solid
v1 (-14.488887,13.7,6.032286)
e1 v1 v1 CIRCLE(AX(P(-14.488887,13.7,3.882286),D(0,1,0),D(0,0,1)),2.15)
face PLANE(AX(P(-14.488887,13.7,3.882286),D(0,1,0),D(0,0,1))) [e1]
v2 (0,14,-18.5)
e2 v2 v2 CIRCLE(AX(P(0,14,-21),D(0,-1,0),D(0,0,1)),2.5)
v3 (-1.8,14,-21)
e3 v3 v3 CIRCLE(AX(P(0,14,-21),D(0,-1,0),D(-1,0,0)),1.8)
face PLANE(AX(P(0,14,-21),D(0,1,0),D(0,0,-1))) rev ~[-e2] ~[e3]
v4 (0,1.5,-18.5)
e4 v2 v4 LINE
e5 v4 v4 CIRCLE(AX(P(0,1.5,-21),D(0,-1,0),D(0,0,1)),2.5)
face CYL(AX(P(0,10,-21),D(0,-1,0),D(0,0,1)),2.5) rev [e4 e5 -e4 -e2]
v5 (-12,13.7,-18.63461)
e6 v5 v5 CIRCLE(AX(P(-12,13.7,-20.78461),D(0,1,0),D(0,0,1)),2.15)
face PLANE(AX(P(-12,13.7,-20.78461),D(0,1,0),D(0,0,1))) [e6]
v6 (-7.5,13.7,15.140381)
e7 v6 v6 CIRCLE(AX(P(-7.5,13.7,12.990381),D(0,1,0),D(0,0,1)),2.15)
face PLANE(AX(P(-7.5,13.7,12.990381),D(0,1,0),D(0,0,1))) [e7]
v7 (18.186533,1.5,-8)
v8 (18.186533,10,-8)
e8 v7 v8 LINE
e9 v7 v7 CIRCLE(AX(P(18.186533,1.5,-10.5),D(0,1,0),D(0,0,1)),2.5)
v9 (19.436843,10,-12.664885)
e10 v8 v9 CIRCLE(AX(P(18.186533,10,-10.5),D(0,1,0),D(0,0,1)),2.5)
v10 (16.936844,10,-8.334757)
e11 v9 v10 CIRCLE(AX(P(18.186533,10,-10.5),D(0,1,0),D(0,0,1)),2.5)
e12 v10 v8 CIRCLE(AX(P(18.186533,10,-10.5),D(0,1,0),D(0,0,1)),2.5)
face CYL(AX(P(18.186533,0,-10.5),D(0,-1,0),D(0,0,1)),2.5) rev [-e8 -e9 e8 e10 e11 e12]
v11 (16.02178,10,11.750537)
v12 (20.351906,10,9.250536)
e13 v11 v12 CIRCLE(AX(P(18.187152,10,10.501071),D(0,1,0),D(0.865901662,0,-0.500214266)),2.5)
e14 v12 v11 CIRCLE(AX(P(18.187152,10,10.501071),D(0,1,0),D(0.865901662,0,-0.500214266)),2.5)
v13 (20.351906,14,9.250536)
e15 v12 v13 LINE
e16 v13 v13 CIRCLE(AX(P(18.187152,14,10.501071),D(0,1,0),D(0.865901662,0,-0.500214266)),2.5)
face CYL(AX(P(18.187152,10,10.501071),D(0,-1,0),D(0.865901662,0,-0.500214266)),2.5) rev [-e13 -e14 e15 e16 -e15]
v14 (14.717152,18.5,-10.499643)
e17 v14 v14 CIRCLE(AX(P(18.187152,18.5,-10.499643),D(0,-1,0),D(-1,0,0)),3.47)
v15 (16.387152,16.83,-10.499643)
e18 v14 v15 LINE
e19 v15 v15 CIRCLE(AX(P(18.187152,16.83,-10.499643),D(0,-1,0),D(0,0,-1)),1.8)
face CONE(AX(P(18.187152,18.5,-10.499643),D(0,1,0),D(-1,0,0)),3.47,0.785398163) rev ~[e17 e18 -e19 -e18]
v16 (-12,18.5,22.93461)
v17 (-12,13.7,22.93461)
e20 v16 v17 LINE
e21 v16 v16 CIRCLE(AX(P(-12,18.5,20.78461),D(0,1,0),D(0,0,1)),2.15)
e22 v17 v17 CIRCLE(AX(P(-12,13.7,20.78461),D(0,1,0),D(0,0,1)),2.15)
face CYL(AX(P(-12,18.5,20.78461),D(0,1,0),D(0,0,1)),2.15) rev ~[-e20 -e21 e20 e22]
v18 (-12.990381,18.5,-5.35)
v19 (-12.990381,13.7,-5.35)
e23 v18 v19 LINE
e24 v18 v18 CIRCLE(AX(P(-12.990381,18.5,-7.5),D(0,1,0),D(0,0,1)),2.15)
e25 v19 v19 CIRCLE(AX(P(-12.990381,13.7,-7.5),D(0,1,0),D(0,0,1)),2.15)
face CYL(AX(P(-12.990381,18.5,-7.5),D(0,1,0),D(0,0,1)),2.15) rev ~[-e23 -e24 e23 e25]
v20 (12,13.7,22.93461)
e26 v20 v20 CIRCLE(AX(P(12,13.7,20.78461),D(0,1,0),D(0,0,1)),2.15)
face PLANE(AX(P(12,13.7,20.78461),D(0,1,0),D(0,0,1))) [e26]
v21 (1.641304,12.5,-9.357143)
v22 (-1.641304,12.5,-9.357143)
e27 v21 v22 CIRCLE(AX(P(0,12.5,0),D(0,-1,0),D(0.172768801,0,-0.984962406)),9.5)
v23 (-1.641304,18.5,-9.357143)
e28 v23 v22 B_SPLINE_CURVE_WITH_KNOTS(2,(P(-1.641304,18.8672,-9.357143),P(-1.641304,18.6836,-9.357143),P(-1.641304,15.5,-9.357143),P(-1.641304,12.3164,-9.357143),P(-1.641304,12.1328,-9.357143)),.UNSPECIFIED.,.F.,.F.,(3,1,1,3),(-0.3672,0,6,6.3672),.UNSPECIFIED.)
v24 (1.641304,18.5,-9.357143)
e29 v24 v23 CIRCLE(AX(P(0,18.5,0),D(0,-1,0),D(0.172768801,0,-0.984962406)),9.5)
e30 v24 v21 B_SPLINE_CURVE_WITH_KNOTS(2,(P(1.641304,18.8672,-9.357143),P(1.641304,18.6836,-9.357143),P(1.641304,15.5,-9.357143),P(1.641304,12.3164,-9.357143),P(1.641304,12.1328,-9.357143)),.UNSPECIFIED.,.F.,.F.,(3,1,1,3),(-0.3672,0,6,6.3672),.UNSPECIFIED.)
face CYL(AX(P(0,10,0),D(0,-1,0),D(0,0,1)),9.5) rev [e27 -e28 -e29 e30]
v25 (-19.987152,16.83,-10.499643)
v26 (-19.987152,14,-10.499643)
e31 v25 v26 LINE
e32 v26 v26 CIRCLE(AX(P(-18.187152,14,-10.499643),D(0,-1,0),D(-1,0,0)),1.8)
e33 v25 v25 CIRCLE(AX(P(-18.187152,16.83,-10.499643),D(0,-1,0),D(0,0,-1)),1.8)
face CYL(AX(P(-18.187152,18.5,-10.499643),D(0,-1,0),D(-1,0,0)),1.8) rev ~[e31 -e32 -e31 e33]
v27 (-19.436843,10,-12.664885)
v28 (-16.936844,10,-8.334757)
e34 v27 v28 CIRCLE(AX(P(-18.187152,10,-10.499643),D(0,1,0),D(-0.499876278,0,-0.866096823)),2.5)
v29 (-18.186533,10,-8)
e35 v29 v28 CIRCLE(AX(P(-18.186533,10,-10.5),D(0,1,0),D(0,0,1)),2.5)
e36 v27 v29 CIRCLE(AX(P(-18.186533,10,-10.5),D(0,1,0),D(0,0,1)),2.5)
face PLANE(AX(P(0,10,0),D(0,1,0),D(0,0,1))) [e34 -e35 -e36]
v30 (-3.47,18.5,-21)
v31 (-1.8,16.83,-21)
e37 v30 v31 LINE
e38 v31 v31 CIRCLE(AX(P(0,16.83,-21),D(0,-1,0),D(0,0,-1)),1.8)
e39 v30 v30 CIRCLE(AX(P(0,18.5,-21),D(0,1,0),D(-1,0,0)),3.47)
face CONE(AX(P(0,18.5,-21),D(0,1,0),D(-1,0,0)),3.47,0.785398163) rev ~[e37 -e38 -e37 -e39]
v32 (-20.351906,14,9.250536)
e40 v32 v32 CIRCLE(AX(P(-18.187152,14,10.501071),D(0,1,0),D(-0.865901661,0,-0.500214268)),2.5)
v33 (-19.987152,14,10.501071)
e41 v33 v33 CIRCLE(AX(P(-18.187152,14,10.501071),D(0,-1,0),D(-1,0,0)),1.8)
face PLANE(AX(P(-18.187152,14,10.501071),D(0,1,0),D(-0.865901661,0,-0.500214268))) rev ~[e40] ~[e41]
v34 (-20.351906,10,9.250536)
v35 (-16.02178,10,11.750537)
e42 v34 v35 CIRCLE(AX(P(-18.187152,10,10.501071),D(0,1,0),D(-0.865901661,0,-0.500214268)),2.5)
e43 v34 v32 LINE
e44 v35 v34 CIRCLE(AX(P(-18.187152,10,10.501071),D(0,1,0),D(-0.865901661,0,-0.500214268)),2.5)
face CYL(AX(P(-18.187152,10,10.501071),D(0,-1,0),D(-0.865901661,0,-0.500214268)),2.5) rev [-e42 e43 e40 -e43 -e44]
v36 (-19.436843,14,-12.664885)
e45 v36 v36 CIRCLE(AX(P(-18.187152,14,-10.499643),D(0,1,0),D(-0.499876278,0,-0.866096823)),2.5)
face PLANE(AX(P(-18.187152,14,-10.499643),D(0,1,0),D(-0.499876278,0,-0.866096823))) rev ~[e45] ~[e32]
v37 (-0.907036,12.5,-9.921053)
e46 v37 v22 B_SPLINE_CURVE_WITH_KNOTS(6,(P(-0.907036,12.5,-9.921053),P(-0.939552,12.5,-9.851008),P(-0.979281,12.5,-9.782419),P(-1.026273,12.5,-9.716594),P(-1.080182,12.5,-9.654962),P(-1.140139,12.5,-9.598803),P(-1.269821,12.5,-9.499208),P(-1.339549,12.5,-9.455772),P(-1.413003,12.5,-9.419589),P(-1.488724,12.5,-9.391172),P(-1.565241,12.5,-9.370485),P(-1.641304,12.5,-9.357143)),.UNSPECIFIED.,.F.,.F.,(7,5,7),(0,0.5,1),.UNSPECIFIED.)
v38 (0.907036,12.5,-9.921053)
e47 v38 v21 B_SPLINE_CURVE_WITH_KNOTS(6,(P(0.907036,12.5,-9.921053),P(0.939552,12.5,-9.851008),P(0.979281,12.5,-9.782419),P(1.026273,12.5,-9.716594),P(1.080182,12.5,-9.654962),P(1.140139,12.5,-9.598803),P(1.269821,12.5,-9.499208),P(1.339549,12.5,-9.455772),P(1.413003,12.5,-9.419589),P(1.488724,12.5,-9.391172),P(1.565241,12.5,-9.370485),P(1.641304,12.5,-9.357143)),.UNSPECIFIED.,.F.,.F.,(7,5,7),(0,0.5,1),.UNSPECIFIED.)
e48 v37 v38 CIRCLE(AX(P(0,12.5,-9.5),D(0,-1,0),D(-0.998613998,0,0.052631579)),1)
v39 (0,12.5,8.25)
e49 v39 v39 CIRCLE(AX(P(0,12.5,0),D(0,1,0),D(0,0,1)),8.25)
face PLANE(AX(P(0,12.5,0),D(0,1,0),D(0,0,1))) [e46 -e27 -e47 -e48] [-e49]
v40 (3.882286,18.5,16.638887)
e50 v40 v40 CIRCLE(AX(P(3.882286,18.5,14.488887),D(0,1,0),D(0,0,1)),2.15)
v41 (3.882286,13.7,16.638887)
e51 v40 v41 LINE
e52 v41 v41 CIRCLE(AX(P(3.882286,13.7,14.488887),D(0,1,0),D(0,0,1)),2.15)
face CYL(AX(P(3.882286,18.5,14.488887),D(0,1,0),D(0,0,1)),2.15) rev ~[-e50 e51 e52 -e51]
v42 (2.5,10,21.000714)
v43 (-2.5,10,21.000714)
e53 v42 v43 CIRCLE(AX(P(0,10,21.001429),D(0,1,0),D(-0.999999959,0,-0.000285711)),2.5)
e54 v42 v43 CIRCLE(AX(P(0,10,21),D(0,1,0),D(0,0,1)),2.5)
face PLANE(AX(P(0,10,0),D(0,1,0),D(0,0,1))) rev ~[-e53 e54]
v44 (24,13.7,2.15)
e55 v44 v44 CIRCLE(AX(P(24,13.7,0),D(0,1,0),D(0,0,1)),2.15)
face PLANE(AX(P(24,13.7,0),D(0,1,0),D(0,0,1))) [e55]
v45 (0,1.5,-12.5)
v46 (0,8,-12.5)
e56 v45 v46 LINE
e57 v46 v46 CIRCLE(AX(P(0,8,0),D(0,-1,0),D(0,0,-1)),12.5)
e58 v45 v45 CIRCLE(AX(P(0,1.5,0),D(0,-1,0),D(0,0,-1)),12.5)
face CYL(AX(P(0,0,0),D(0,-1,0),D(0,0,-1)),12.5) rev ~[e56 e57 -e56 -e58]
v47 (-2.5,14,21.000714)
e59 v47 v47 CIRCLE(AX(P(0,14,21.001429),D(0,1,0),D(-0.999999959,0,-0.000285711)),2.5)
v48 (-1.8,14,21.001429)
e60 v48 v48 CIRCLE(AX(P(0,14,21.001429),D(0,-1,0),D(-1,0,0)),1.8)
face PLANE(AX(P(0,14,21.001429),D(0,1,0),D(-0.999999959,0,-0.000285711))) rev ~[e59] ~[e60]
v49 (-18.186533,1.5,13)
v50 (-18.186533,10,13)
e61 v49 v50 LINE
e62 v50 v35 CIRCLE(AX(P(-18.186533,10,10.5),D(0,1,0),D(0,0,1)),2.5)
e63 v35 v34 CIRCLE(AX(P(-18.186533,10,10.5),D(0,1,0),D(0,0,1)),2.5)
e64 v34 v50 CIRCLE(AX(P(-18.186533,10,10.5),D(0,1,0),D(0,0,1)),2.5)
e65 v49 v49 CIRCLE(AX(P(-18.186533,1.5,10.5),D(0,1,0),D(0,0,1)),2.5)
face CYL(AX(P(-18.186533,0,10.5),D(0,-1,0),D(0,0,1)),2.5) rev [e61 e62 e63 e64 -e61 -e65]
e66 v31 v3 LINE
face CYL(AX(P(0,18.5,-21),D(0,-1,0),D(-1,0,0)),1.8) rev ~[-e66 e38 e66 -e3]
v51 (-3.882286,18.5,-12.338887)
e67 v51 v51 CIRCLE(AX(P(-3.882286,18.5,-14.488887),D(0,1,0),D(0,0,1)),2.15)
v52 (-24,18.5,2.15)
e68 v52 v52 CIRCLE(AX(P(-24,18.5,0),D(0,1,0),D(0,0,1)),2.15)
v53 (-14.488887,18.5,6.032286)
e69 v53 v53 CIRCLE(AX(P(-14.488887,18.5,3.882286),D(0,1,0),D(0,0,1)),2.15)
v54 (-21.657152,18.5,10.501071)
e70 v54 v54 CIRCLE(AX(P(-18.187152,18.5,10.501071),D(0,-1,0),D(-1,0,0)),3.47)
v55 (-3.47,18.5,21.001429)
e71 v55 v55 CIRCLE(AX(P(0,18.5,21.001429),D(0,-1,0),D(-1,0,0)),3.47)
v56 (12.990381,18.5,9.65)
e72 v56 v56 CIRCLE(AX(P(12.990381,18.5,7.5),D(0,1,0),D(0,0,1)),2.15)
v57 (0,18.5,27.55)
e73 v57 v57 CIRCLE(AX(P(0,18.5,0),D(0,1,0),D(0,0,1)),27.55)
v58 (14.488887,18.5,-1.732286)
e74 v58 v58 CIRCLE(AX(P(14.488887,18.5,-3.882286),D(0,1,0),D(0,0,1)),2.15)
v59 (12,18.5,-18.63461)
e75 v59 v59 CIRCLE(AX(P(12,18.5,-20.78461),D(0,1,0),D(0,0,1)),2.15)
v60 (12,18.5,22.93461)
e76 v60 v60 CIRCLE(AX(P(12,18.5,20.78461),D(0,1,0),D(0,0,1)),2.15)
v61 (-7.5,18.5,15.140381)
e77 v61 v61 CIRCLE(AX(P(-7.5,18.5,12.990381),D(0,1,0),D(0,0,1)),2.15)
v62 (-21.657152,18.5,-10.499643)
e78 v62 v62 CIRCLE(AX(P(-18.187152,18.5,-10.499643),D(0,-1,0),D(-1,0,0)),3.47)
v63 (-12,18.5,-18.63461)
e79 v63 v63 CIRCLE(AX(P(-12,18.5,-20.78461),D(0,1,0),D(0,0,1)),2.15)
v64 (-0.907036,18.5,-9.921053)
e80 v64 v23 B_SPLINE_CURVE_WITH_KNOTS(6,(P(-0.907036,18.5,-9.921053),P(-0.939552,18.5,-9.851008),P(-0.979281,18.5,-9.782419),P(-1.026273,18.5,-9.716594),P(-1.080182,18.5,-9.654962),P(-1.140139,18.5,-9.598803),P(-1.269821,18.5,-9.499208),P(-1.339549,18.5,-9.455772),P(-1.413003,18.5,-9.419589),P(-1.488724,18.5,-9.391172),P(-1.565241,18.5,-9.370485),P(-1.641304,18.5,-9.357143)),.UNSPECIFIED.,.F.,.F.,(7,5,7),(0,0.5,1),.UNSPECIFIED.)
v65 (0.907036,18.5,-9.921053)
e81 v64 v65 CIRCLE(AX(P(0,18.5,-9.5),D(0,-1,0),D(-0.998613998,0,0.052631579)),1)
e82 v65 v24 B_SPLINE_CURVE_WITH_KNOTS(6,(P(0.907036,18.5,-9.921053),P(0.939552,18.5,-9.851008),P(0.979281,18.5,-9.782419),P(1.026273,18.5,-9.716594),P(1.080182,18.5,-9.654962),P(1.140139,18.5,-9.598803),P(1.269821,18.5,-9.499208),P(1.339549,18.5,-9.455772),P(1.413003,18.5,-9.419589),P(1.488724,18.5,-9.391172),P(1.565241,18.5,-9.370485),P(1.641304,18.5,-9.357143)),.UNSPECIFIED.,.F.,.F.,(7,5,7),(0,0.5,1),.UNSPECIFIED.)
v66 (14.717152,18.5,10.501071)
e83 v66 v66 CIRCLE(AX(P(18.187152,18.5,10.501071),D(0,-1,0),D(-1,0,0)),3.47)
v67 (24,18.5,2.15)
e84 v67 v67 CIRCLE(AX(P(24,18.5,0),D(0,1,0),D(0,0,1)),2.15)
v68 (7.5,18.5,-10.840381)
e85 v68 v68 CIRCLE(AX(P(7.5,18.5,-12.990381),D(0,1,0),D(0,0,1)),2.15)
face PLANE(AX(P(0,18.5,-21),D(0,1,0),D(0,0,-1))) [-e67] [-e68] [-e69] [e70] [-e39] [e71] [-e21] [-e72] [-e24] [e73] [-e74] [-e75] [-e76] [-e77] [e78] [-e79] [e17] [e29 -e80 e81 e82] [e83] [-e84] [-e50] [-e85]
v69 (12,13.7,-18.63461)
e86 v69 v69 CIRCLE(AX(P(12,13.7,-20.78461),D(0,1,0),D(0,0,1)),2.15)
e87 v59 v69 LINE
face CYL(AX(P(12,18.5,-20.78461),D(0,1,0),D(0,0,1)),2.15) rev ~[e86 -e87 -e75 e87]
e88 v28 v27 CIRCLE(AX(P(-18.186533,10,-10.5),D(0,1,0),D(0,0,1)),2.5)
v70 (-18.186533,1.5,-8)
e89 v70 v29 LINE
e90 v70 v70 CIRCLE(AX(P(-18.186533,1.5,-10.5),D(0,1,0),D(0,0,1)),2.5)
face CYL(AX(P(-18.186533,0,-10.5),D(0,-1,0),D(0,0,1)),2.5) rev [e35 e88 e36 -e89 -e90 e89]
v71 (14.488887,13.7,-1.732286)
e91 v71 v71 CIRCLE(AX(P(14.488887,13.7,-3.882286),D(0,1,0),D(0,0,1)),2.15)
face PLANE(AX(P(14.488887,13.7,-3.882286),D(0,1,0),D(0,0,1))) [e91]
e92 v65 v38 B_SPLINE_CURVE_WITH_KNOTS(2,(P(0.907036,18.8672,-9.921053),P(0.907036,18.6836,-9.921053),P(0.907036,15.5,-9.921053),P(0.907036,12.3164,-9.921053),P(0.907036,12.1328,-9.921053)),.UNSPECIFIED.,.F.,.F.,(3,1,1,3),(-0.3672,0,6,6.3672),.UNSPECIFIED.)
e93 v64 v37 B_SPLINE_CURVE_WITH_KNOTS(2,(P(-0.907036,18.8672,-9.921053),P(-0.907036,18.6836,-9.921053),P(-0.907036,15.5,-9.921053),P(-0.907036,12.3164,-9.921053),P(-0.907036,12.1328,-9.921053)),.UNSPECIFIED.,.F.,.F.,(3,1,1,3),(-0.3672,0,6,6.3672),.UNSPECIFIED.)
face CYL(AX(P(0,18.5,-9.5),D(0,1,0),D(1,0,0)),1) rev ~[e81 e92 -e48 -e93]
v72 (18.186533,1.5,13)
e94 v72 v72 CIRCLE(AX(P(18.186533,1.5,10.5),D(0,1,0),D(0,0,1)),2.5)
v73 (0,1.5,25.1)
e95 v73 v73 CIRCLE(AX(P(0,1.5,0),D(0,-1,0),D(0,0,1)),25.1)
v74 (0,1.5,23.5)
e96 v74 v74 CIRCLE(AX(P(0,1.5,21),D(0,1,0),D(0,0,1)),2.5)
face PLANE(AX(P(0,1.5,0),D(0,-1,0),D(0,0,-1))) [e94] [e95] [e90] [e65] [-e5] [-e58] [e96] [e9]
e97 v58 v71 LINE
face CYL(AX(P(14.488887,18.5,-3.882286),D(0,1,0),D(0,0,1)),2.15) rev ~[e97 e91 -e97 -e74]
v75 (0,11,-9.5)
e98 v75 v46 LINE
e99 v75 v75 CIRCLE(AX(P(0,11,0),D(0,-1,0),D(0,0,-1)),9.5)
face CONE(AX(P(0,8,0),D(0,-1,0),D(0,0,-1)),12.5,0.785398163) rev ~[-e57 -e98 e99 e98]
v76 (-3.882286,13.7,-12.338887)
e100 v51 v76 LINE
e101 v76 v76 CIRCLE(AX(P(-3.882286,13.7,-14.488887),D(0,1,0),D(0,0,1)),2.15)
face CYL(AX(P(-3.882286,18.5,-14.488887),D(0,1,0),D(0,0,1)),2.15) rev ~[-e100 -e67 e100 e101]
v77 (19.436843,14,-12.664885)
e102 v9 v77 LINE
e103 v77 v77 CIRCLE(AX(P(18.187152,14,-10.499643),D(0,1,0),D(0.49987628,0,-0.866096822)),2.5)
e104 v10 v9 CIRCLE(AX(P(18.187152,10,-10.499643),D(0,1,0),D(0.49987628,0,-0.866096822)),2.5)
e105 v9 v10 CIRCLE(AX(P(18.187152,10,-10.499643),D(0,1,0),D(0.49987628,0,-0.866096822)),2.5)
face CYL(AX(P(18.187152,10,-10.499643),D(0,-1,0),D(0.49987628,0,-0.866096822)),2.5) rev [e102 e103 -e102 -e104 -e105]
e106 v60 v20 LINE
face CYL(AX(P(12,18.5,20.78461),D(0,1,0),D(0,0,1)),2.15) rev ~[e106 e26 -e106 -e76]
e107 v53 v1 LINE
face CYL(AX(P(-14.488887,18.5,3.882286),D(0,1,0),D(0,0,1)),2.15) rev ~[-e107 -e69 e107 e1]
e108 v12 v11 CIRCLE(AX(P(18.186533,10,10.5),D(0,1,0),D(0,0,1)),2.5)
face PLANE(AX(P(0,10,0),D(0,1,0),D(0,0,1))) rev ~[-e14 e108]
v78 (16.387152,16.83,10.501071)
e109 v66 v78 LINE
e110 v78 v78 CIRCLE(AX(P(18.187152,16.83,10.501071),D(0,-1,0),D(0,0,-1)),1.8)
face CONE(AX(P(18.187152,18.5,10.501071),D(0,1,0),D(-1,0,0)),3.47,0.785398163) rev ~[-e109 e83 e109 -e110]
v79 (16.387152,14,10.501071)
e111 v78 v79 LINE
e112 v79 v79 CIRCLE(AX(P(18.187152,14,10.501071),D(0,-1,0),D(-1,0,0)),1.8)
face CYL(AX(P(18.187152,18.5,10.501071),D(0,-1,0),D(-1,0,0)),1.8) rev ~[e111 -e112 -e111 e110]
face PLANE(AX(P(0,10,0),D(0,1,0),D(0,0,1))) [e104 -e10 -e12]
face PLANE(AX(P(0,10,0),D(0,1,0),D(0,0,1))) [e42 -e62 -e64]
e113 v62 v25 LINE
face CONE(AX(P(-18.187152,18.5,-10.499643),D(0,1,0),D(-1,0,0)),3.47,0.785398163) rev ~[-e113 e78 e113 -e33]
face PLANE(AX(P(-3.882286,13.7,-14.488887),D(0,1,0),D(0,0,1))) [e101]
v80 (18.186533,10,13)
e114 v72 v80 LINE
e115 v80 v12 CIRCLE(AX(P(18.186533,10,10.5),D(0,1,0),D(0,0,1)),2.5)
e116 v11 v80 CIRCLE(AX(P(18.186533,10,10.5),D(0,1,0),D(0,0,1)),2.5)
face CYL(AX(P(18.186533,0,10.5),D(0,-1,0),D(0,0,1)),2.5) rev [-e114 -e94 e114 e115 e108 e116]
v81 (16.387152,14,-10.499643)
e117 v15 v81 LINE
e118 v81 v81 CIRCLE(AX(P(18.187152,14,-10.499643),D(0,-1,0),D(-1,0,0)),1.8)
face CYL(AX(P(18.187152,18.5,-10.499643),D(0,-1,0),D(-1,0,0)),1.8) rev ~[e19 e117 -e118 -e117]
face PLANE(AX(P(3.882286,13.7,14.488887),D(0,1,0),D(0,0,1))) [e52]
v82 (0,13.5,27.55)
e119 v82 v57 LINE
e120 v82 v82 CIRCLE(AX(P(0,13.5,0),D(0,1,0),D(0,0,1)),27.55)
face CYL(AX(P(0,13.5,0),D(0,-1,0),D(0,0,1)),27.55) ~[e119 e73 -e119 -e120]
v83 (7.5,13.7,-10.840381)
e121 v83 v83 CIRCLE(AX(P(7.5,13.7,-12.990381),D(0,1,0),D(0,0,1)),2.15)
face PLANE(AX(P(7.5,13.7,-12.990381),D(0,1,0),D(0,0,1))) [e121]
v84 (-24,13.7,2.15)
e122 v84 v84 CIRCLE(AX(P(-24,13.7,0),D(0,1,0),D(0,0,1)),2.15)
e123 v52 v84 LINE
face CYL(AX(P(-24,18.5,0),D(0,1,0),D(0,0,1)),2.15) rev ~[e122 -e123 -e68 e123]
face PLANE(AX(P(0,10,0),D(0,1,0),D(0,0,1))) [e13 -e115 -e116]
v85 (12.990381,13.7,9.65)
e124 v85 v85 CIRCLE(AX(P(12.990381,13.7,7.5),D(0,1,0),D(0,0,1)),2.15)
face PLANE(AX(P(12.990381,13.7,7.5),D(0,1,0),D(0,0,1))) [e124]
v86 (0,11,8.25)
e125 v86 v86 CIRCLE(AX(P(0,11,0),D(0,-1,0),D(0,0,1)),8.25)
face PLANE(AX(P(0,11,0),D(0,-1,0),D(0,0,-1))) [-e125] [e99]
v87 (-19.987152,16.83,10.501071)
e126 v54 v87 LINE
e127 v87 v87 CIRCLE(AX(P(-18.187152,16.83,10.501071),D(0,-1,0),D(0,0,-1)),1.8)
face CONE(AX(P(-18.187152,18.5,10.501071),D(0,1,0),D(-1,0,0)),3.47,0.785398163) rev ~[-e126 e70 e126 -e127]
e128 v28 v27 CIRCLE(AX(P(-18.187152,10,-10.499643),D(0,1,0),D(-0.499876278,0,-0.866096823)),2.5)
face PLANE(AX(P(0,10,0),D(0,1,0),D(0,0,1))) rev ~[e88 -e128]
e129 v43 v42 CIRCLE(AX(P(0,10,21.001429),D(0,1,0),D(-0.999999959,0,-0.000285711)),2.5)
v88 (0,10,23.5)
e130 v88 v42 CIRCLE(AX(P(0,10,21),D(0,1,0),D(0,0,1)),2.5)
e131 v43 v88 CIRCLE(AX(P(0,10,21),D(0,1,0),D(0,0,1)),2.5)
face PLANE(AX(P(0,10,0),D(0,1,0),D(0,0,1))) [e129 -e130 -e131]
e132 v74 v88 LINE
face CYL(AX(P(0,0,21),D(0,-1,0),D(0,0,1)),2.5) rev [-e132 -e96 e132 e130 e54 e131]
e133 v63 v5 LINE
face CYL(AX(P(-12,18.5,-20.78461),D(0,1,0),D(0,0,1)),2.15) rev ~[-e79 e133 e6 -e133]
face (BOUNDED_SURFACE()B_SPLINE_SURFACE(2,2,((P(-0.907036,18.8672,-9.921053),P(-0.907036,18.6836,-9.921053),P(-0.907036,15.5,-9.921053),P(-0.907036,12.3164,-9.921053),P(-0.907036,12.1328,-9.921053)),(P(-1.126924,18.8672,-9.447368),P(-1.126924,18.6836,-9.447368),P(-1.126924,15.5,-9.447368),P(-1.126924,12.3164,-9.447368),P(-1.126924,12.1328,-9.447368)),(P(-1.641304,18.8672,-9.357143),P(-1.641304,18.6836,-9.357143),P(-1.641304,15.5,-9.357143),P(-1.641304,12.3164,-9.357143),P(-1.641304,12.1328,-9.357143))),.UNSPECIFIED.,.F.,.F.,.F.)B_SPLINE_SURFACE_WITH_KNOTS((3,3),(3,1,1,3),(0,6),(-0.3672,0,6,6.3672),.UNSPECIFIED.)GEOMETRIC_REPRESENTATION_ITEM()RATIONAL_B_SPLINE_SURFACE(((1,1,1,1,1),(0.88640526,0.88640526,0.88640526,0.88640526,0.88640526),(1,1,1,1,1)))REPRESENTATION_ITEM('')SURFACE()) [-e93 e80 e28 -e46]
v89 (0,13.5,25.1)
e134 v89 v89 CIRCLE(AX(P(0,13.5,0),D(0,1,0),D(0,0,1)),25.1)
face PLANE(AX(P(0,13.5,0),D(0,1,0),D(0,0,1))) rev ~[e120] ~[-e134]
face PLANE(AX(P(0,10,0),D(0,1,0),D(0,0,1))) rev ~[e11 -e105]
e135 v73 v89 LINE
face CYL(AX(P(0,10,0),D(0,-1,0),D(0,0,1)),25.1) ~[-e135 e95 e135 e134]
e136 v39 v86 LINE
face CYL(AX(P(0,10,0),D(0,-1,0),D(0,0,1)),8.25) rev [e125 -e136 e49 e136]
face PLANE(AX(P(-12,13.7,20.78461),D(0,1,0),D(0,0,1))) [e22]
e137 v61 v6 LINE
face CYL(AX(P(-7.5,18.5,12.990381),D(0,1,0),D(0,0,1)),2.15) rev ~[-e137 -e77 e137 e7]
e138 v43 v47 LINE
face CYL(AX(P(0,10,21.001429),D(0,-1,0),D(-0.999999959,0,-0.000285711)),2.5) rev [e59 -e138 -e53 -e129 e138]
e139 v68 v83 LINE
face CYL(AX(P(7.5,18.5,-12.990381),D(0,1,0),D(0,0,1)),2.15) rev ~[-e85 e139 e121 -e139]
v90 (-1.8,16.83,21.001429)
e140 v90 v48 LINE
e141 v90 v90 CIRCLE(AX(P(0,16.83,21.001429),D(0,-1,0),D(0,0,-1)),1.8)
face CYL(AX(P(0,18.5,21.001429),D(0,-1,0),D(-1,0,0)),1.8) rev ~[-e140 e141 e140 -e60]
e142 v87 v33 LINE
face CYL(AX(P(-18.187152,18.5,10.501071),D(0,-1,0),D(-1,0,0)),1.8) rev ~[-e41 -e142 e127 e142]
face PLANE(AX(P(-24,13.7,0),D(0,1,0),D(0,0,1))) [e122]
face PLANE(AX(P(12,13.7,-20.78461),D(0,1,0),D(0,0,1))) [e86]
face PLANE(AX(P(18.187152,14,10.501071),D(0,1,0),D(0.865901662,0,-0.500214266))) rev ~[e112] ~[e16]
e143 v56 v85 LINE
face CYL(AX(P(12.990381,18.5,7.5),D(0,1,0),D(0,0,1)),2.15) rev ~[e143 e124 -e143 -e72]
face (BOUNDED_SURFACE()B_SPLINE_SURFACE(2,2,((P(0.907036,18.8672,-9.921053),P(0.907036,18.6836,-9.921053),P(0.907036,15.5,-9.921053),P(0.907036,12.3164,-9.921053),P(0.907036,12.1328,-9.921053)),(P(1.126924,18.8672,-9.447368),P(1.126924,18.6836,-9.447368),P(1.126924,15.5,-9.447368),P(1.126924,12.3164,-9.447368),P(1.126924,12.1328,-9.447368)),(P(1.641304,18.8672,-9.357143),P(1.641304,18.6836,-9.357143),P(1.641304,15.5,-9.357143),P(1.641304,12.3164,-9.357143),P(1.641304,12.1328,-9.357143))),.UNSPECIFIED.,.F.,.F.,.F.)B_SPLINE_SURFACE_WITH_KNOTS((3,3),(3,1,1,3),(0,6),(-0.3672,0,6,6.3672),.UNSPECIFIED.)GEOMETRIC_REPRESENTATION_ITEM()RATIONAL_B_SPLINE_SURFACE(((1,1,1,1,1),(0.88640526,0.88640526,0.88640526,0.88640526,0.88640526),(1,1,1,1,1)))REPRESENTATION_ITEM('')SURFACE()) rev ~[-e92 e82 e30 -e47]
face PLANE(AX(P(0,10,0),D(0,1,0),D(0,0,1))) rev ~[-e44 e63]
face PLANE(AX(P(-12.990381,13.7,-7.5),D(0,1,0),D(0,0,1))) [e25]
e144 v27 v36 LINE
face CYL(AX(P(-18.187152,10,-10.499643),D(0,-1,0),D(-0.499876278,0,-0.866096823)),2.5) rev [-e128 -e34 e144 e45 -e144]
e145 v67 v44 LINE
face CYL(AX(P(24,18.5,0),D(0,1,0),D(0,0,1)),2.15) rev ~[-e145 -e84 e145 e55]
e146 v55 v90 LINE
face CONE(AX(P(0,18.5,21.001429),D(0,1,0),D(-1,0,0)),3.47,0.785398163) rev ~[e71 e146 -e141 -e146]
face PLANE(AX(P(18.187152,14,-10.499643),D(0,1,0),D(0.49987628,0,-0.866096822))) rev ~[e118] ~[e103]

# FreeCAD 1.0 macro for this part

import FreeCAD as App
import Part
import Sketcher
from FreeCAD import Vector
Q = App.Units.Quantity


def edges_at(feature, points):
    """Names of the edges that pass closest to the given points."""
    edges = feature.Shape.Edges
    near = lambda p: min(range(len(edges)), key=lambda i: edges[i].distToShape(Part.Vertex(*p))[0])
    return sorted({f"Edge{near(p) + 1}" for p in points})

doc = App.newDocument("Part")
body = doc.addObject("PartDesign::Body", "Body")

# Sketch on XZ plane
sketch1 = body.newObject("Sketcher::SketchObject", "Sketch")
sketch1.AttachmentSupport = (doc.getObject("XZ_Plane"), [""])
sketch1.MapMode = "FlatFace"
sketch1.addGeometry(Part.Circle(Vector(0, 0, 0), Vector(0, 0, 1), 25.1), False)
sketch1.addGeometry(Part.Circle(Vector(-18.186533, -10.5, 0), Vector(0, 0, 1), 2.5), False)
sketch1.addGeometry(Part.Circle(Vector(0, -21, 0), Vector(0, 0, 1), 2.5), False)
sketch1.addGeometry(Part.Circle(Vector(-18.186533, 10.5, 0), Vector(0, 0, 1), 2.5), False)
sketch1.addGeometry(Part.Circle(Vector(18.186533, -10.5, 0), Vector(0, 0, 1), 2.5), False)
sketch1.addGeometry(Part.Circle(Vector(0, 0, 0), Vector(0, 0, 1), 8.25), False)
sketch1.addGeometry(Part.Circle(Vector(0, 21, 0), Vector(0, 0, 1), 2.5), False)
sketch1.addGeometry(Part.Circle(Vector(18.186533, 10.5, 0), Vector(0, 0, 1), 2.5), False)
sketch1.addConstraint(Sketcher.Constraint("Coincident", 0, 3, -1, 1))
sketch1.addConstraint(Sketcher.Constraint("Coincident", 5, 3, -1, 1))
sketch1.addConstraint(Sketcher.Constraint("Equal", 1, 2))
sketch1.addConstraint(Sketcher.Constraint("Equal", 2, 3))
sketch1.addConstraint(Sketcher.Constraint("Equal", 3, 4))
sketch1.addConstraint(Sketcher.Constraint("Equal", 4, 6))
sketch1.addConstraint(Sketcher.Constraint("Equal", 6, 7))
sketch1.addConstraint(Sketcher.Constraint("Symmetric", 3, 3, 4, 3, -1, 1))
sketch1.addConstraint(Sketcher.Constraint("Symmetric", 2, 3, 6, 3, -1, 1))
sketch1.addConstraint(Sketcher.Constraint("Symmetric", 1, 3, 7, 3, -1, 1))
sketch1.addConstraint(Sketcher.Constraint("Symmetric", 1, 3, 4, 3, -2))
sketch1.addConstraint(Sketcher.Constraint("PointOnObject", 2, 3, -2))
sketch1.addConstraint(Sketcher.Constraint("Diameter", 1, Q("5 mm")))
sketch1.addConstraint(Sketcher.Constraint("Diameter", 0, Q("50.2 mm")))
sketch1.addConstraint(Sketcher.Constraint("Diameter", 5, Q("16.5 mm")))
sketch1.addConstraint(Sketcher.Constraint("DistanceY", 2, 3, -1, 1, Q("21 mm")))
sketch1.addConstraint(Sketcher.Constraint("DistanceY", 1, 3, 3, 3, Q("21 mm")))
sketch1.addConstraint(Sketcher.Constraint("DistanceX", 1, 3, -1, 1, Q("18.186533 mm")))
pad1 = body.newObject("PartDesign::Pad", "Pad")
pad1.Profile = sketch1
pad1.Length = 10
pad1.Reversed = True

# Sketch on XZ plane
sketch2 = body.newObject("Sketcher::SketchObject", "Sketch001")
sketch2.AttachmentSupport = (doc.getObject("XZ_Plane"), [""])
sketch2.MapMode = "FlatFace"
sketch2.AttachmentOffset = App.Placement(Vector(0, 0, -10), App.Rotation())
sketch2.addGeometry(Part.Circle(Vector(0, 0, 0), Vector(0, 0, 1), 15.5), False)
sketch2.addGeometry(Part.Circle(Vector(0, 0, 0), Vector(0, 0, 1), 9.5), False)
sketch2.addConstraint(Sketcher.Constraint("Coincident", 0, 3, -1, 1))
sketch2.addConstraint(Sketcher.Constraint("Coincident", 1, 3, -1, 1))
sketch2.addConstraint(Sketcher.Constraint("Diameter", 0, Q("31 mm")))
sketch2.addConstraint(Sketcher.Constraint("Diameter", 1, Q("19 mm")))
pad2 = body.newObject("PartDesign::Pad", "Pad001")
pad2.Profile = sketch2
pad2.Length = 8.5
pad2.Reversed = True

# Sketch on XZ plane
sketch3 = body.newObject("Sketcher::SketchObject", "Sketch002")
sketch3.AttachmentSupport = (doc.getObject("XZ_Plane"), [""])
sketch3.MapMode = "FlatFace"
sketch3.AttachmentOffset = App.Placement(Vector(0, 0, -10), App.Rotation())
sketch3.addGeometry(Part.Circle(Vector(0, 0, 0), Vector(0, 0, 1), 9.5), False)
sketch3.addGeometry(Part.Circle(Vector(0, 0, 0), Vector(0, 0, 1), 8.25), False)
sketch3.addConstraint(Sketcher.Constraint("Coincident", 0, 3, -1, 1))
sketch3.addConstraint(Sketcher.Constraint("Coincident", 1, 3, -1, 1))
sketch3.addConstraint(Sketcher.Constraint("Diameter", 0, Q("19 mm")))
sketch3.addConstraint(Sketcher.Constraint("Diameter", 1, Q("16.5 mm")))
pad3 = body.newObject("PartDesign::Pad", "Pad002")
pad3.Profile = sketch3
pad3.Length = 2.5
pad3.Reversed = True

# Sketch on XZ plane
sketch4 = body.newObject("Sketcher::SketchObject", "Sketch003")
sketch4.AttachmentSupport = (doc.getObject("XZ_Plane"), [""])
sketch4.MapMode = "FlatFace"
sketch4.addGeometry(Part.Circle(Vector(0, 0, 0), Vector(0, 0, 1), 12.5), False)
sketch4.addConstraint(Sketcher.Constraint("Coincident", 0, 3, -1, 1))
sketch4.addConstraint(Sketcher.Constraint("Diameter", 0, Q("25 mm")))
pocket1 = body.newObject("PartDesign::Pocket", "Pocket")
pocket1.Profile = sketch4
pocket1.Length = 11
doc.recompute()

chamfer = body.newObject("PartDesign::Chamfer", "Chamfer")
chamfer.Base = (pocket1, edges_at(pocket1, [(0, 11, 12.5)]))
chamfer.Size = 3

# Sketch on XZ plane
sketch5 = body.newObject("Sketcher::SketchObject", "Sketch004")
sketch5.AttachmentSupport = (doc.getObject("XZ_Plane"), [""])
sketch5.MapMode = "FlatFace"
sketch5.AttachmentOffset = App.Placement(Vector(0, 0, -10), App.Rotation())
sketch5.addGeometry(Part.Circle(Vector(0, 0, 0), Vector(0, 0, 1), 25.1), False)
sketch5.addGeometry(Part.Circle(Vector(-18.187152, -10.499643, 0), Vector(0, 0, 1), 2.5), False)
sketch5.addGeometry(Part.Circle(Vector(0, -21, 0), Vector(0, 0, 1), 2.5), False)
sketch5.addGeometry(Part.Circle(Vector(-18.187152, 10.501071, 0), Vector(0, 0, 1), 2.5), False)
sketch5.addGeometry(Part.Circle(Vector(0, 0, 0), Vector(0, 0, 1), 15.5), False)
sketch5.addGeometry(Part.Circle(Vector(18.187152, -10.499643, 0), Vector(0, 0, 1), 2.5), False)
sketch5.addGeometry(Part.Circle(Vector(0, 21.001429, 0), Vector(0, 0, 1), 2.5), False)
sketch5.addGeometry(Part.Circle(Vector(18.187152, 10.501071, 0), Vector(0, 0, 1), 2.5), False)
sketch5.addConstraint(Sketcher.Constraint("Coincident", 0, 3, -1, 1))
sketch5.addConstraint(Sketcher.Constraint("Coincident", 4, 3, -1, 1))
sketch5.addConstraint(Sketcher.Constraint("Equal", 1, 2))
sketch5.addConstraint(Sketcher.Constraint("Equal", 2, 3))
sketch5.addConstraint(Sketcher.Constraint("Equal", 3, 5))
sketch5.addConstraint(Sketcher.Constraint("Equal", 5, 6))
sketch5.addConstraint(Sketcher.Constraint("Equal", 6, 7))
sketch5.addConstraint(Sketcher.Constraint("Symmetric", 1, 3, 5, 3, -2))
sketch5.addConstraint(Sketcher.Constraint("Symmetric", 3, 3, 7, 3, -2))
sketch5.addConstraint(Sketcher.Constraint("PointOnObject", 2, 3, -2))
sketch5.addConstraint(Sketcher.Constraint("PointOnObject", 6, 3, -2))
sketch5.addConstraint(Sketcher.Constraint("Vertical", 1, 3, 3, 3))
sketch5.addConstraint(Sketcher.Constraint("Diameter", 1, Q("5 mm")))
sketch5.addConstraint(Sketcher.Constraint("Diameter", 4, Q("31 mm")))
sketch5.addConstraint(Sketcher.Constraint("Diameter", 0, Q("50.2 mm")))
sketch5.addConstraint(Sketcher.Constraint("DistanceY", 2, 3, -1, 1, Q("21 mm")))
sketch5.addConstraint(Sketcher.Constraint("DistanceY", -1, 1, 3, 3, Q("10.501071 mm")))
sketch5.addConstraint(Sketcher.Constraint("DistanceY", -1, 1, 6, 3, Q("21.001429 mm")))
sketch5.addConstraint(Sketcher.Constraint("DistanceY", 1, 3, 6, 3, Q("31.501071 mm")))
sketch5.addConstraint(Sketcher.Constraint("DistanceX", 1, 3, -1, 1, Q("18.187152 mm")))
pad4 = body.newObject("PartDesign::Pad", "Pad003")
pad4.Profile = sketch5
pad4.Length = 8.5
pad4.Reversed = True

# Sketch on XZ plane
sketch6 = body.newObject("Sketcher::SketchObject", "Sketch005")
sketch6.AttachmentSupport = (doc.getObject("XZ_Plane"), [""])
sketch6.MapMode = "FlatFace"
sketch6.AttachmentOffset = App.Placement(Vector(0, 0, -13.5), App.Rotation())
sketch6.addGeometry(Part.Circle(Vector(0, 0, 0), Vector(0, 0, 1), 27.55), False)
sketch6.addGeometry(Part.Circle(Vector(0, 0, 0), Vector(0, 0, 1), 25.1), False)
sketch6.addConstraint(Sketcher.Constraint("Coincident", 0, 3, -1, 1))
sketch6.addConstraint(Sketcher.Constraint("Coincident", 1, 3, -1, 1))
sketch6.addConstraint(Sketcher.Constraint("Diameter", 0, Q("55.1 mm")))
sketch6.addConstraint(Sketcher.Constraint("Diameter", 1, Q("50.2 mm")))
pad5 = body.newObject("PartDesign::Pad", "Pad004")
pad5.Profile = sketch6
pad5.Length = 5
pad5.Reversed = True

# Sketch on XZ plane
sketch7 = body.newObject("Sketcher::SketchObject", "Sketch006")
sketch7.AttachmentSupport = (doc.getObject("XZ_Plane"), [""])
sketch7.MapMode = "FlatFace"
sketch7.AttachmentOffset = App.Placement(Vector(0, 0, -18.5), App.Rotation())
sketch7.addGeometry(Part.Circle(Vector(0, -9.5, 0), Vector(0, 0, 1), 1), False)
sketch7.addConstraint(Sketcher.Constraint("PointOnObject", 0, 3, -2))
sketch7.addConstraint(Sketcher.Constraint("Diameter", 0, Q("2 mm")))
sketch7.addConstraint(Sketcher.Constraint("DistanceY", 0, 3, -1, 1, Q("9.5 mm")))
pocket2 = body.newObject("PartDesign::Pocket", "Pocket001")
pocket2.Profile = sketch7
pocket2.Length = 6
pocket2.Reversed = True
doc.recompute()

fillet = body.newObject("PartDesign::Fillet", "Fillet")
fillet.Base = (pocket2, edges_at(pocket2, [(0.999, 15.5, -9.447), (-0.999, 15.5, -9.447)]))
fillet.Radius = 1

# Sketch on XZ plane
sketch8 = body.newObject("Sketcher::SketchObject", "Sketch007")
sketch8.AttachmentSupport = (doc.getObject("XZ_Plane"), [""])
sketch8.MapMode = "FlatFace"
sketch8.AttachmentOffset = App.Placement(Vector(0, 0, -18.5), App.Rotation())
sketch8.addGeometry(Part.Circle(Vector(7.5, -12.990381, 0), Vector(0, 0, 1), 2.15), False)
sketch8.addGeometry(Part.Circle(Vector(14.488887, -3.882286, 0), Vector(0, 0, 1), 2.15), False)
sketch8.addGeometry(Part.Circle(Vector(12.990381, 7.5, 0), Vector(0, 0, 1), 2.15), False)
sketch8.addGeometry(Part.Circle(Vector(3.882286, 14.488887, 0), Vector(0, 0, 1), 2.15), False)
sketch8.addGeometry(Part.Circle(Vector(-7.5, 12.990381, 0), Vector(0, 0, 1), 2.15), False)
sketch8.addGeometry(Part.Circle(Vector(-14.488887, 3.882286, 0), Vector(0, 0, 1), 2.15), False)
sketch8.addGeometry(Part.Circle(Vector(-24, 0, 0), Vector(0, 0, 1), 2.15), False)
sketch8.addGeometry(Part.Circle(Vector(-12, -20.78461, 0), Vector(0, 0, 1), 2.15), False)
sketch8.addGeometry(Part.Circle(Vector(12, -20.78461, 0), Vector(0, 0, 1), 2.15), False)
sketch8.addGeometry(Part.Circle(Vector(24, 0, 0), Vector(0, 0, 1), 2.15), False)
sketch8.addGeometry(Part.Circle(Vector(12, 20.78461, 0), Vector(0, 0, 1), 2.15), False)
sketch8.addGeometry(Part.Circle(Vector(-12, 20.78461, 0), Vector(0, 0, 1), 2.15), False)
sketch8.addGeometry(Part.Circle(Vector(-12.990381, -7.5, 0), Vector(0, 0, 1), 2.15), False)
sketch8.addGeometry(Part.Circle(Vector(-3.882286, -14.488887, 0), Vector(0, 0, 1), 2.15), False)
sketch8.addConstraint(Sketcher.Constraint("Equal", 0, 1))
sketch8.addConstraint(Sketcher.Constraint("Equal", 1, 2))
sketch8.addConstraint(Sketcher.Constraint("Equal", 2, 3))
sketch8.addConstraint(Sketcher.Constraint("Equal", 3, 4))
sketch8.addConstraint(Sketcher.Constraint("Equal", 4, 5))
sketch8.addConstraint(Sketcher.Constraint("Equal", 5, 6))
sketch8.addConstraint(Sketcher.Constraint("Equal", 6, 7))
sketch8.addConstraint(Sketcher.Constraint("Equal", 7, 8))
sketch8.addConstraint(Sketcher.Constraint("Equal", 8, 9))
sketch8.addConstraint(Sketcher.Constraint("Equal", 9, 10))
sketch8.addConstraint(Sketcher.Constraint("Equal", 10, 11))
sketch8.addConstraint(Sketcher.Constraint("Equal", 11, 12))
sketch8.addConstraint(Sketcher.Constraint("Equal", 12, 13))
sketch8.addConstraint(Sketcher.Constraint("Symmetric", 0, 3, 4, 3, -1, 1))
sketch8.addConstraint(Sketcher.Constraint("Symmetric", 1, 3, 5, 3, -1, 1))
sketch8.addConstraint(Sketcher.Constraint("Symmetric", 6, 3, 9, 3, -1, 1))
sketch8.addConstraint(Sketcher.Constraint("Symmetric", 7, 3, 10, 3, -1, 1))
sketch8.addConstraint(Sketcher.Constraint("Symmetric", 8, 3, 11, 3, -1, 1))
sketch8.addConstraint(Sketcher.Constraint("Symmetric", 2, 3, 12, 3, -1, 1))
sketch8.addConstraint(Sketcher.Constraint("Symmetric", 3, 3, 13, 3, -1, 1))
sketch8.addConstraint(Sketcher.Constraint("Symmetric", 7, 3, 8, 3, -2))
sketch8.addConstraint(Sketcher.Constraint("PointOnObject", 6, 3, -1))
sketch8.addConstraint(Sketcher.Constraint("Diameter", 0, Q("4.3 mm")))
sketch8.addConstraint(Sketcher.Constraint("DistanceX", 6, 3, -1, 1, Q("24 mm")))
sketch8.addConstraint(Sketcher.Constraint("DistanceX", 7, 3, -1, 1, Q("12 mm")))
sketch8.addConstraint(Sketcher.Constraint("DistanceX", 4, 3, 0, 3, Q("15 mm")))
sketch8.addConstraint(Sketcher.Constraint("DistanceY", -1, 1, 2, 3, Q("7.5 mm")))
sketch8.addConstraint(Sketcher.Constraint("DistanceX", 3, 3, 1, 3, Q("10.606602 mm")))
sketch8.addConstraint(Sketcher.Constraint("DistanceY", 5, 3, 3, 3, Q("10.606602 mm")))
sketch8.addConstraint(Sketcher.Constraint("DistanceY", 0, 3, -1, 1, Q("12.990381 mm")))
sketch8.addConstraint(Sketcher.Constraint("DistanceX", -1, 1, 2, 3, Q("12.990381 mm")))
sketch8.addConstraint(Sketcher.Constraint("DistanceY", 7, 3, -1, 1, Q("20.78461 mm")))
sketch8.addConstraint(Sketcher.Constraint("DistanceY", 0, 3, 3, 3, Q("27.479268 mm")))
sketch8.addConstraint(Sketcher.Constraint("DistanceX", 5, 3, 2, 3, Q("27.479268 mm")))
pocket3 = body.newObject("PartDesign::Pocket", "Pocket002")
pocket3.Profile = sketch8
pocket3.Length = 4.8
pocket3.Reversed = True

# Sketch on XZ plane
sketch9 = body.newObject("Sketcher::SketchObject", "Sketch008")
sketch9.AttachmentSupport = (doc.getObject("XZ_Plane"), [""])
sketch9.MapMode = "FlatFace"
sketch9.addGeometry(Part.Circle(Vector(0, 0, 0), Vector(0, 0, 1), 25.1), False)
sketch9.addGeometry(Part.Circle(Vector(-18.186533, 10.5, 0), Vector(0, 0, 1), 2.5), False)
sketch9.addGeometry(Part.Circle(Vector(0, 21, 0), Vector(0, 0, 1), 2.5), False)
sketch9.addGeometry(Part.Circle(Vector(-18.186533, -10.5, 0), Vector(0, 0, 1), 2.5), False)
sketch9.addGeometry(Part.Circle(Vector(18.186533, 10.5, 0), Vector(0, 0, 1), 2.5), False)
sketch9.addGeometry(Part.Circle(Vector(0, 0, 0), Vector(0, 0, 1), 12.5), False)
sketch9.addGeometry(Part.Circle(Vector(0, -21, 0), Vector(0, 0, 1), 2.5), False)
sketch9.addGeometry(Part.Circle(Vector(18.186533, -10.5, 0), Vector(0, 0, 1), 2.5), False)
sketch9.addConstraint(Sketcher.Constraint("Coincident", 0, 3, -1, 1))
sketch9.addConstraint(Sketcher.Constraint("Coincident", 5, 3, -1, 1))
sketch9.addConstraint(Sketcher.Constraint("Equal", 1, 2))
sketch9.addConstraint(Sketcher.Constraint("Equal", 2, 3))
sketch9.addConstraint(Sketcher.Constraint("Equal", 3, 4))
sketch9.addConstraint(Sketcher.Constraint("Equal", 4, 6))
sketch9.addConstraint(Sketcher.Constraint("Equal", 6, 7))
sketch9.addConstraint(Sketcher.Constraint("Symmetric", 3, 3, 4, 3, -1, 1))
sketch9.addConstraint(Sketcher.Constraint("Symmetric", 2, 3, 6, 3, -1, 1))
sketch9.addConstraint(Sketcher.Constraint("Symmetric", 1, 3, 7, 3, -1, 1))
sketch9.addConstraint(Sketcher.Constraint("Symmetric", 1, 3, 4, 3, -2))
sketch9.addConstraint(Sketcher.Constraint("PointOnObject", 2, 3, -2))
sketch9.addConstraint(Sketcher.Constraint("Diameter", 1, Q("5 mm")))
sketch9.addConstraint(Sketcher.Constraint("Diameter", 5, Q("25 mm")))
sketch9.addConstraint(Sketcher.Constraint("Diameter", 0, Q("50.2 mm")))
sketch9.addConstraint(Sketcher.Constraint("DistanceY", -1, 1, 2, 3, Q("21 mm")))
sketch9.addConstraint(Sketcher.Constraint("DistanceY", 3, 3, 1, 3, Q("21 mm")))
sketch9.addConstraint(Sketcher.Constraint("DistanceX", 1, 3, -1, 1, Q("18.186533 mm")))
pocket4 = body.newObject("PartDesign::Pocket", "Pocket003")
pocket4.Profile = sketch9
pocket4.Length = 1.5

# Sketch on XZ plane
sketch10 = body.newObject("Sketcher::SketchObject", "Sketch009")
sketch10.AttachmentSupport = (doc.getObject("XZ_Plane"), [""])
sketch10.MapMode = "FlatFace"
sketch10.AttachmentOffset = App.Placement(Vector(0, 0, -14), App.Rotation())
sketch10.addGeometry(Part.Circle(Vector(0, -21, 0), Vector(0, 0, 1), 2.5), False)
sketch10.addGeometry(Part.Circle(Vector(0, -21, 0), Vector(0, 0, 1), 1.5), False)
sketch10.addGeometry(Part.Circle(Vector(18.187152, -10.499643, 0), Vector(0, 0, 1), 2.5), False)
sketch10.addGeometry(Part.Circle(Vector(18.187152, -10.499643, 0), Vector(0, 0, 1), 1.5), False)
sketch10.addGeometry(Part.Circle(Vector(18.187152, 10.501071, 0), Vector(0, 0, 1), 2.5), False)
sketch10.addGeometry(Part.Circle(Vector(18.187152, 10.501071, 0), Vector(0, 0, 1), 1.5), False)
sketch10.addGeometry(Part.Circle(Vector(0, 21.001429, 0), Vector(0, 0, 1), 2.5), False)
sketch10.addGeometry(Part.Circle(Vector(0, 21.001429, 0), Vector(0, 0, 1), 1.5), False)
sketch10.addGeometry(Part.Circle(Vector(-18.187152, 10.501071, 0), Vector(0, 0, 1), 2.5), False)
sketch10.addGeometry(Part.Circle(Vector(-18.187152, 10.501071, 0), Vector(0, 0, 1), 1.5), False)
sketch10.addGeometry(Part.Circle(Vector(-18.187152, -10.499643, 0), Vector(0, 0, 1), 2.5), False)
sketch10.addGeometry(Part.Circle(Vector(-18.187152, -10.499643, 0), Vector(0, 0, 1), 1.5), False)
sketch10.addConstraint(Sketcher.Constraint("Coincident", 1, 3, 0, 3))
sketch10.addConstraint(Sketcher.Constraint("Coincident", 3, 3, 2, 3))
sketch10.addConstraint(Sketcher.Constraint("Coincident", 5, 3, 4, 3))
sketch10.addConstraint(Sketcher.Constraint("Coincident", 7, 3, 6, 3))
sketch10.addConstraint(Sketcher.Constraint("Coincident", 9, 3, 8, 3))
sketch10.addConstraint(Sketcher.Constraint("Coincident", 11, 3, 10, 3))
sketch10.addConstraint(Sketcher.Constraint("Equal", 0, 2))
sketch10.addConstraint(Sketcher.Constraint("Equal", 1, 3))
sketch10.addConstraint(Sketcher.Constraint("Equal", 2, 4))
sketch10.addConstraint(Sketcher.Constraint("Equal", 3, 5))
sketch10.addConstraint(Sketcher.Constraint("Equal", 4, 6))
sketch10.addConstraint(Sketcher.Constraint("Equal", 5, 7))
sketch10.addConstraint(Sketcher.Constraint("Equal", 6, 8))
sketch10.addConstraint(Sketcher.Constraint("Equal", 7, 9))
sketch10.addConstraint(Sketcher.Constraint("Equal", 8, 10))
sketch10.addConstraint(Sketcher.Constraint("Equal", 9, 11))
sketch10.addConstraint(Sketcher.Constraint("Symmetric", 4, 3, 8, 3, -2))
sketch10.addConstraint(Sketcher.Constraint("Symmetric", 2, 3, 10, 3, -2))
sketch10.addConstraint(Sketcher.Constraint("PointOnObject", 0, 3, -2))
sketch10.addConstraint(Sketcher.Constraint("PointOnObject", 6, 3, -2))
sketch10.addConstraint(Sketcher.Constraint("Vertical", 3, 3, 4, 3))
sketch10.addConstraint(Sketcher.Constraint("Diameter", 0, Q("5 mm")))
sketch10.addConstraint(Sketcher.Constraint("Diameter", 1, Q("3 mm")))
sketch10.addConstraint(Sketcher.Constraint("DistanceY", 0, 3, -1, 1, Q("21 mm")))
sketch10.addConstraint(Sketcher.Constraint("DistanceY", -1, 1, 4, 3, Q("10.501071 mm")))
sketch10.addConstraint(Sketcher.Constraint("DistanceY", -1, 1, 6, 3, Q("21.001429 mm")))
sketch10.addConstraint(Sketcher.Constraint("DistanceY", 2, 3, 6, 3, Q("31.501071 mm")))
sketch10.addConstraint(Sketcher.Constraint("DistanceX", -1, 1, 2, 3, Q("18.187152 mm")))
pad6 = body.newObject("PartDesign::Pad", "Pad005")
pad6.Profile = sketch10
pad6.Length = 4.5
pad6.Reversed = True

# Sketch on XZ plane
sketch11 = body.newObject("Sketcher::SketchObject", "Sketch010")
sketch11.AttachmentSupport = (doc.getObject("XZ_Plane"), [""])
sketch11.MapMode = "FlatFace"
sketch11.AttachmentOffset = App.Placement(Vector(0, 0, -18.5), App.Rotation())
sketch11.addGeometry(Part.Circle(Vector(0, -21, 0), Vector(0, 0, 1), 1.8), False)
sketch11.addGeometry(Part.Circle(Vector(18.187152, -10.499643, 0), Vector(0, 0, 1), 1.8), False)
sketch11.addGeometry(Part.Circle(Vector(18.187152, 10.501071, 0), Vector(0, 0, 1), 1.8), False)
sketch11.addGeometry(Part.Circle(Vector(0, 21.001429, 0), Vector(0, 0, 1), 1.8), False)
sketch11.addGeometry(Part.Circle(Vector(-18.187152, 10.501071, 0), Vector(0, 0, 1), 1.8), False)
sketch11.addGeometry(Part.Circle(Vector(-18.187152, -10.499643, 0), Vector(0, 0, 1), 1.8), False)
sketch11.addConstraint(Sketcher.Constraint("Equal", 0, 1))
sketch11.addConstraint(Sketcher.Constraint("Equal", 1, 2))
sketch11.addConstraint(Sketcher.Constraint("Equal", 2, 3))
sketch11.addConstraint(Sketcher.Constraint("Equal", 3, 4))
sketch11.addConstraint(Sketcher.Constraint("Equal", 4, 5))
sketch11.addConstraint(Sketcher.Constraint("Symmetric", 2, 3, 4, 3, -2))
sketch11.addConstraint(Sketcher.Constraint("Symmetric", 1, 3, 5, 3, -2))
sketch11.addConstraint(Sketcher.Constraint("PointOnObject", 0, 3, -2))
sketch11.addConstraint(Sketcher.Constraint("PointOnObject", 3, 3, -2))
sketch11.addConstraint(Sketcher.Constraint("Vertical", 1, 3, 2, 3))
sketch11.addConstraint(Sketcher.Constraint("Diameter", 0, Q("3.6 mm")))
sketch11.addConstraint(Sketcher.Constraint("DistanceY", 0, 3, -1, 1, Q("21 mm")))
sketch11.addConstraint(Sketcher.Constraint("DistanceY", -1, 1, 2, 3, Q("10.501071 mm")))
sketch11.addConstraint(Sketcher.Constraint("DistanceY", -1, 1, 3, 3, Q("21.001429 mm")))
sketch11.addConstraint(Sketcher.Constraint("DistanceY", 1, 3, 3, 3, Q("31.501071 mm")))
sketch11.addConstraint(Sketcher.Constraint("DistanceX", -1, 1, 1, 3, Q("18.187152 mm")))
doc.recompute()
hole = body.newObject("PartDesign::Hole", "Hole")
hole.Profile = sketch11
hole.ThreadType = "None"
hole.Diameter = 3.6
hole.DepthType = "ThroughAll"
hole.HoleCutType = "Countersink"
hole.HoleCutDiameter = 6.94
hole.HoleCutCountersinkAngle = 90
hole.Reversed = True

doc.recompute()
